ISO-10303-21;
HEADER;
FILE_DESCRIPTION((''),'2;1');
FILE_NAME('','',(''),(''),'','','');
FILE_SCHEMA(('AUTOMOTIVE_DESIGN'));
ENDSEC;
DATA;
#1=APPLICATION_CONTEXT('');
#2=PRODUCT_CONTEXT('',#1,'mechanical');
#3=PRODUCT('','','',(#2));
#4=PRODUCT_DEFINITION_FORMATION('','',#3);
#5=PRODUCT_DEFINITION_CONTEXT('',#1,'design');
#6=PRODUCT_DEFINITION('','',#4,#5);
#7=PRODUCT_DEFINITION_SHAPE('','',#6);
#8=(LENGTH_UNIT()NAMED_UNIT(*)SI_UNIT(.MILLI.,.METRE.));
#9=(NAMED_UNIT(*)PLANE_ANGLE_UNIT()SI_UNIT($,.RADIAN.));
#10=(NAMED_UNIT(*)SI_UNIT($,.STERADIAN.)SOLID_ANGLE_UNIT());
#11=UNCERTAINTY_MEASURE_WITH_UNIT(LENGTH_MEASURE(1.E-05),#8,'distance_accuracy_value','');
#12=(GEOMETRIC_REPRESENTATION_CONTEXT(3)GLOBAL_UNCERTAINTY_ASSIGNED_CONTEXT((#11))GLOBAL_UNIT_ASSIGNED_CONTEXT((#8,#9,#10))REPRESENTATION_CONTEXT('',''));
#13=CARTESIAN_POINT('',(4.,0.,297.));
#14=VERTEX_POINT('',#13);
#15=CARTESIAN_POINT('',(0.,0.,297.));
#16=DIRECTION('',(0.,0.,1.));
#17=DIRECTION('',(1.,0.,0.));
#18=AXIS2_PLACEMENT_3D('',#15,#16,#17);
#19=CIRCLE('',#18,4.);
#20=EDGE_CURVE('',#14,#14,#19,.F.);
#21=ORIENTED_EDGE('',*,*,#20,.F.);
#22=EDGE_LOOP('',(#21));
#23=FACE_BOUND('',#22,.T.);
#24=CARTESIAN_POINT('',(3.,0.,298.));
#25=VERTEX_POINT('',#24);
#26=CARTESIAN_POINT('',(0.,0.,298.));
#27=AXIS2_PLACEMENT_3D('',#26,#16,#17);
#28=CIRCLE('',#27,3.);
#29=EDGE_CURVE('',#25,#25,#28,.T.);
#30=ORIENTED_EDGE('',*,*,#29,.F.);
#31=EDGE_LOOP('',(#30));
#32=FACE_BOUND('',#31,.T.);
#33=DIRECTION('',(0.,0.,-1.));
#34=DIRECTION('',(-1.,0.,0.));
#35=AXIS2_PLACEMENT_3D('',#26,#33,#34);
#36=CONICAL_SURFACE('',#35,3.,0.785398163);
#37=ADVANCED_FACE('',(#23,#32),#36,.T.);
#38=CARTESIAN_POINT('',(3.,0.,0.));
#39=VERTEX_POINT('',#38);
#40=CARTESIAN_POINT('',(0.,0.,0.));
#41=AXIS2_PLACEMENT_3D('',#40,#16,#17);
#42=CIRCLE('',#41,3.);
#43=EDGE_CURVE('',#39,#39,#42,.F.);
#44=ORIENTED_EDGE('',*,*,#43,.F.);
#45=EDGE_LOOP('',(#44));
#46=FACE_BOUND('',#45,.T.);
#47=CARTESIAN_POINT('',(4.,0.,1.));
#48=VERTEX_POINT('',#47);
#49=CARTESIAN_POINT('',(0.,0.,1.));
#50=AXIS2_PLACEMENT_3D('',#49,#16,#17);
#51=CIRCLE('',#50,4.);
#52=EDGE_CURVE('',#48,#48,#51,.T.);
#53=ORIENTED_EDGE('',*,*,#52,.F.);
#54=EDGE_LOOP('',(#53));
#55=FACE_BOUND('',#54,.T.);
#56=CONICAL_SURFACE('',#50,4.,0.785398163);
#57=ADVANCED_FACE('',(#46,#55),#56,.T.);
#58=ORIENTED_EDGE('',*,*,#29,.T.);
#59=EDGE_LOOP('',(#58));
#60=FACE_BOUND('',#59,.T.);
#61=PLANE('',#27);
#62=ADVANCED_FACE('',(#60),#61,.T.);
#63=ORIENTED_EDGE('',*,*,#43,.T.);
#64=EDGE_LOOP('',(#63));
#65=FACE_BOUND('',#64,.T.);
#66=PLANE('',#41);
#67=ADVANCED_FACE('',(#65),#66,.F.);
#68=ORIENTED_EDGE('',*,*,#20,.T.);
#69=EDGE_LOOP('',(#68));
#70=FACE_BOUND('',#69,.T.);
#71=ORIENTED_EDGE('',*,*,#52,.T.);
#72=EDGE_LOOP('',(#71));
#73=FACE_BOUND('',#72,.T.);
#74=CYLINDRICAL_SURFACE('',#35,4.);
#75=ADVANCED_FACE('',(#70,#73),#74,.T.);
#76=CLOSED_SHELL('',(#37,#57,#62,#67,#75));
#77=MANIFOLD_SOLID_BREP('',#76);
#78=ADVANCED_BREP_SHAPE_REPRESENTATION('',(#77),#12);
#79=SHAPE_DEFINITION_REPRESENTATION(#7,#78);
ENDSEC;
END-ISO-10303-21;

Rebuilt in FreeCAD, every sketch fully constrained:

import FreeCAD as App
import Part
import Sketcher
Q = App.Units.Quantity


def edges_at(feature, points):
    """Names of the edges that pass closest to the given points."""
    edges = feature.Shape.Edges
    near = lambda p: min(range(len(edges)), key=lambda i: edges[i].distToShape(Part.Vertex(*p))[0])
    return sorted({f"Edge{near(p) + 1}" for p in points})

doc = App.newDocument("Part")
params = doc.addObject("Spreadsheet::Sheet", "Params")
for row, (alias, value) in enumerate([
    ("sketch1_diameter", "8 mm"),
    ("pad1_length", "298 mm"),
    ("chamfer_size", "1 mm"),
], start=1):
    params.set(f"A{row}", alias)
    params.set(f"B{row}", "=" + value)
    params.setAlias(f"B{row}", alias)

body = doc.addObject("PartDesign::Body", "Body")

sketch1 = doc.addObject("Sketcher::SketchObject", "Sketch")
body.addObject(sketch1)
sketch1.AttachmentSupport = (doc.XY_Plane, [""])
sketch1.MapMode = "FlatFace"
sketch1.addGeometry(Part.Circle(App.Vector(0, 0, 0), App.Vector(0, 0, 1), 4), False)
sketch1.addConstraint(Sketcher.Constraint("Coincident", 0, 3, -1, 1))
sketch1.addConstraint(Sketcher.Constraint("Diameter", 0, Q("8 mm")))
sketch1.setExpression("Constraints[1]", "Params.sketch1_diameter")
pad1 = doc.addObject("PartDesign::Pad", "Pad")
body.addObject(pad1)
pad1.Profile = sketch1
pad1.setExpression("Length", "Params.pad1_length")
doc.recompute()

chamfer = doc.addObject("PartDesign::Chamfer", "Chamfer")
body.addObject(chamfer)
chamfer.Base = (pad1, edges_at(pad1, [(-4, 0, 0), (-4, 0, 298)]))
chamfer.setExpression("Size", "Params.chamfer_size")

doc.recompute()
